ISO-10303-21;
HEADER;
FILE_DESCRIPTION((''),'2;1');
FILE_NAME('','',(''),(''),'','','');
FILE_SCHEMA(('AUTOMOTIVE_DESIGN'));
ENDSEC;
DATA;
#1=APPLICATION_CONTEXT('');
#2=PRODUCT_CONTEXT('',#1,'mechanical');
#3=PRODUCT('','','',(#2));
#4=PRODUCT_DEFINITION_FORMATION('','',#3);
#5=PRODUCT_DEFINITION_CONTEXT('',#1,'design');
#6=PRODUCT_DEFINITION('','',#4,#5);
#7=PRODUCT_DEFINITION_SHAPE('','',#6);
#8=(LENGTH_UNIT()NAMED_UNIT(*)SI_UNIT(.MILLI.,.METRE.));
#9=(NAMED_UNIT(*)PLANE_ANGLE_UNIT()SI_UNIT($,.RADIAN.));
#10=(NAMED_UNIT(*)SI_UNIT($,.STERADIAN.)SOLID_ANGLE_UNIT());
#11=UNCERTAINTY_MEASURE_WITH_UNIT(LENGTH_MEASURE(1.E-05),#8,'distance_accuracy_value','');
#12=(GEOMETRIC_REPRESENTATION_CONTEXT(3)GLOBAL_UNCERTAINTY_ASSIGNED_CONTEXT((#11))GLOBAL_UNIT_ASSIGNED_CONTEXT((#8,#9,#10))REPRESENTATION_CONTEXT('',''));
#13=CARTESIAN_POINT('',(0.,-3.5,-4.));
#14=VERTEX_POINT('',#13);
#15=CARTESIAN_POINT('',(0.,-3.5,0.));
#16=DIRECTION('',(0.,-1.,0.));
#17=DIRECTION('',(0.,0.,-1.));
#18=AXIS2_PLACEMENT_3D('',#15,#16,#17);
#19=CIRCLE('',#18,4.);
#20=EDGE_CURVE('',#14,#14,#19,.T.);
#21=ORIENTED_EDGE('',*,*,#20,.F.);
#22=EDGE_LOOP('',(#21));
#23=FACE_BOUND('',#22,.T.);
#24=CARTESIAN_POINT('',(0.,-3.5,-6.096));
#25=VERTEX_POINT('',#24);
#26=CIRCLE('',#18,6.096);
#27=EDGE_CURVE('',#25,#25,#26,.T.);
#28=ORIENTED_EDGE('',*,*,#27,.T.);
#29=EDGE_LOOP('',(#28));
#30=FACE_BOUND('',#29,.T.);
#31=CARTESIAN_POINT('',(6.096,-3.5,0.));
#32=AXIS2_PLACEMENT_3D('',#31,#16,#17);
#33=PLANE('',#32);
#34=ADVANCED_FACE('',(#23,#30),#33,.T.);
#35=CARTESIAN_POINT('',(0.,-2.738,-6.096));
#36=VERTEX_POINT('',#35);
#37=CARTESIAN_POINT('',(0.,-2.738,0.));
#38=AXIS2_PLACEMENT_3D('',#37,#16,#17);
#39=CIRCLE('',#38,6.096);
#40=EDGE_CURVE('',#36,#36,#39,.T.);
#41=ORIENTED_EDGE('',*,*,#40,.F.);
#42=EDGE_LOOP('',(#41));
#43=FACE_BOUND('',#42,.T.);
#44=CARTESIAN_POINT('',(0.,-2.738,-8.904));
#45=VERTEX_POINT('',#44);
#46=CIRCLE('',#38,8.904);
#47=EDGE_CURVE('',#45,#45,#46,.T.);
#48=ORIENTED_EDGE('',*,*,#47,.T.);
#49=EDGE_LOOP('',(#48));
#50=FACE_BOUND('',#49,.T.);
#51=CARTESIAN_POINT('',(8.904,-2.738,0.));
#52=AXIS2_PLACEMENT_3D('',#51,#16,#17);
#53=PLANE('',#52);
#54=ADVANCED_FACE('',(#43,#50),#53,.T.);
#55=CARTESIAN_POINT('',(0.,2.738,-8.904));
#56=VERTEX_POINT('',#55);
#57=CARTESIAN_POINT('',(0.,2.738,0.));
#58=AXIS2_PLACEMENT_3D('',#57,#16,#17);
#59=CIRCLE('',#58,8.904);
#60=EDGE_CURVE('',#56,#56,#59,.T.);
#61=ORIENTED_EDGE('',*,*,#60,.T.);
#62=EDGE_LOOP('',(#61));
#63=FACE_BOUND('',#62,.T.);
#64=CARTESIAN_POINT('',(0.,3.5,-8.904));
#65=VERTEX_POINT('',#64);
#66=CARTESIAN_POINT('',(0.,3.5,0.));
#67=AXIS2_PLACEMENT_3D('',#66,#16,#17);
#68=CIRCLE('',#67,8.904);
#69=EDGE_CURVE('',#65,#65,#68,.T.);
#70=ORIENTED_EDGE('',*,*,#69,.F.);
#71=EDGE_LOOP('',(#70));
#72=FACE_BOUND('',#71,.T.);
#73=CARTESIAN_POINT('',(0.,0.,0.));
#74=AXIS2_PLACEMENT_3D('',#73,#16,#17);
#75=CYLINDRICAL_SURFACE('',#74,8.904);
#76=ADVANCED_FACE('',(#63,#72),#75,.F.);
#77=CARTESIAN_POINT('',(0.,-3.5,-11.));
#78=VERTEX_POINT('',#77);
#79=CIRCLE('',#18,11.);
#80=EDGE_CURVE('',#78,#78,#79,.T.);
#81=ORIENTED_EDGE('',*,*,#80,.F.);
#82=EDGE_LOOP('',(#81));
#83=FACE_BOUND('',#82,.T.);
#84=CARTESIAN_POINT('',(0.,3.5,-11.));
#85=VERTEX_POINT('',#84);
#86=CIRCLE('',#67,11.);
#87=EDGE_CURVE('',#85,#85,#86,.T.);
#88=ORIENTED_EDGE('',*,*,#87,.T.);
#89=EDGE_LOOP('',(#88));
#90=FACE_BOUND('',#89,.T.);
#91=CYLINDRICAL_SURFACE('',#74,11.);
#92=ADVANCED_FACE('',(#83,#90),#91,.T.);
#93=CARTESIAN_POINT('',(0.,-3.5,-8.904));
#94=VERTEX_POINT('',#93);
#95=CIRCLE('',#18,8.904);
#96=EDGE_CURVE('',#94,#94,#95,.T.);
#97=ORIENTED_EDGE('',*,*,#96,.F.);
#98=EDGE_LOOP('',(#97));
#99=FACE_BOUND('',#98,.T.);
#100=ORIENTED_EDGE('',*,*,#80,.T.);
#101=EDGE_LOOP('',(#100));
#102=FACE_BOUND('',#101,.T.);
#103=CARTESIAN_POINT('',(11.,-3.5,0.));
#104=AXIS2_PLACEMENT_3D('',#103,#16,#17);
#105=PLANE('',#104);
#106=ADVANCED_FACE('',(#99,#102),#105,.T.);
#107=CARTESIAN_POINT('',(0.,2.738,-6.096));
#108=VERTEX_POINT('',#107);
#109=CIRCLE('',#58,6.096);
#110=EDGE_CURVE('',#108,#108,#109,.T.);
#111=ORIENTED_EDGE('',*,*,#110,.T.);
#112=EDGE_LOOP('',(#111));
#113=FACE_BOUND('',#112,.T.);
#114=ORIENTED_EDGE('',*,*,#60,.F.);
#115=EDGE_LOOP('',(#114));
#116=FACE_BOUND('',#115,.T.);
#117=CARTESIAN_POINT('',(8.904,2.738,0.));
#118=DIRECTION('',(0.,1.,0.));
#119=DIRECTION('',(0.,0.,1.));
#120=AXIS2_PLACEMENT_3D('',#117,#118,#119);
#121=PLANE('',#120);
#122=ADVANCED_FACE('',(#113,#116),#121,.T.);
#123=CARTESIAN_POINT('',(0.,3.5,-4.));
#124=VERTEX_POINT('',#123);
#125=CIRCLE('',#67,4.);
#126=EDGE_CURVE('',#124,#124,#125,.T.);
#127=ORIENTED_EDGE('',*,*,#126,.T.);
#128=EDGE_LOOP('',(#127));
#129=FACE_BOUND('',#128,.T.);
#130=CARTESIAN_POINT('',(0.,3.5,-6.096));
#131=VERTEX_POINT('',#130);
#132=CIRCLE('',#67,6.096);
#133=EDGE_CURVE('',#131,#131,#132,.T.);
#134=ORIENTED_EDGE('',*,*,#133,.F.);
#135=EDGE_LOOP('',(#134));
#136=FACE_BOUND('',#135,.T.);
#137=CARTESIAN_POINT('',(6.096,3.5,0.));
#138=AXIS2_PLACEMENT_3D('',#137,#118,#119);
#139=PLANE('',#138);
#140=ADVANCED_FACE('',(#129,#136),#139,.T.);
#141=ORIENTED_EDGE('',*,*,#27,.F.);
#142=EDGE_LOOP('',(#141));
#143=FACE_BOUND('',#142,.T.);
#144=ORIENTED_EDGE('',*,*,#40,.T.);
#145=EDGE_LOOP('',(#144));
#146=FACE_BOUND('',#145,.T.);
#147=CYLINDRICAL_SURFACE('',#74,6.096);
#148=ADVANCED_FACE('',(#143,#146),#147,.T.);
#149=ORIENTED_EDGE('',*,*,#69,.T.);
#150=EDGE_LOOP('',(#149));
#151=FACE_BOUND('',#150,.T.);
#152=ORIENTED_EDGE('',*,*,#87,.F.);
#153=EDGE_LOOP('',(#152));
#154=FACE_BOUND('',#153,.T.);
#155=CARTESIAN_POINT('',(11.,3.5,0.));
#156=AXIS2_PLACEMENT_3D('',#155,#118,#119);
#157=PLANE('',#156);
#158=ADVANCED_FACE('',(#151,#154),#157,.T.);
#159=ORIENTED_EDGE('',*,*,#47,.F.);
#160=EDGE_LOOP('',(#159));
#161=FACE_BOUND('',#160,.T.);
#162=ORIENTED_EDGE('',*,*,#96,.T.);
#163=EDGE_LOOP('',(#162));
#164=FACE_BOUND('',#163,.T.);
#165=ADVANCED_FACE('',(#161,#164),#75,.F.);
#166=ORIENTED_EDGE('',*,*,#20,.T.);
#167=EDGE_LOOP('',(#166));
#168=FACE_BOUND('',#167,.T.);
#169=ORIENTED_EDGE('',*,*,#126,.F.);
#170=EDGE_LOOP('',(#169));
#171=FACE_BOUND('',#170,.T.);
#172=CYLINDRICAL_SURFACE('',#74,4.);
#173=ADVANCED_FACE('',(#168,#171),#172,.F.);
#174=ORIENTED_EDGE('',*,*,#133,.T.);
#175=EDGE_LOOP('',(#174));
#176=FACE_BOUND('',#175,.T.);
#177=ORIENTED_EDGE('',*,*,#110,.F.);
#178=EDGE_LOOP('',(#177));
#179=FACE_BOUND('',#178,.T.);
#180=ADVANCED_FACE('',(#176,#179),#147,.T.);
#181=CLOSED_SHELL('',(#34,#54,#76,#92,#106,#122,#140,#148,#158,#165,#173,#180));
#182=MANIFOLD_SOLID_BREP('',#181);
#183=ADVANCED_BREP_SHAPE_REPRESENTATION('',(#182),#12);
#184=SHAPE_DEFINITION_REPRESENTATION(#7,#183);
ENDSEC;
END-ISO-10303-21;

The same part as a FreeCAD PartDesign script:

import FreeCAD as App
import Part
import Sketcher
from FreeCAD import Vector
Q = App.Units.Quantity


def add_polygon(sketch, points):
    """Adds a closed chain of lines whose ends are joined by coincident constraints."""
    first, n = sketch.GeometryCount, len(points)
    for a, b in zip(points, points[1:] + points[:1]):
        sketch.addGeometry(Part.LineSegment(App.Vector(*a, 0), App.Vector(*b, 0)), False)
    for i in range(n):
        sketch.addConstraint(Sketcher.Constraint("Coincident", first + i, 2, first + (i + 1) % n, 1))

doc = App.newDocument("Part")
params = doc.addObject("Spreadsheet::Sheet", "Params")
for row, (alias, value) in enumerate([
    ("sketch1_height", "7 mm"),
    ("revolution_angle", "360 deg"),
], start=1):
    params.set(f"A{row}", alias)
    params.set(f"B{row}", "=" + value)
    params.setAlias(f"B{row}", alias)

body = doc.addObject("PartDesign::Body", "Body")

sketch1 = body.newObject("Sketcher::SketchObject", "Sketch")
sketch1.AttachmentSupport = (doc.getObject("XY_Plane"), [""])
sketch1.MapMode = "FlatFace"
add_polygon(sketch1, [(11, -3.5), (11, 3.5), (8.9, 3.5), (8.9, 2.7), (6.1, 2.7), (6.1, 3.5), (4, 3.5), (4, -3.5), (6.1, -3.5), (6.1, -2.7), (8.9, -2.7), (8.9, -3.5)])
sketch1.addConstraint([
    Sketcher.Constraint("Vertical", 0),
    Sketcher.Constraint("Horizontal", 1),
    Sketcher.Constraint("Vertical", 2),
    Sketcher.Constraint("Horizontal", 3),
    Sketcher.Constraint("Vertical", 4),
    Sketcher.Constraint("Horizontal", 5),
    Sketcher.Constraint("Vertical", 6),
    Sketcher.Constraint("Horizontal", 7),
    Sketcher.Constraint("Vertical", 8),
    Sketcher.Constraint("Horizontal", 9),
    Sketcher.Constraint("Vertical", 10),
    Sketcher.Constraint("Horizontal", 11),
    Sketcher.Constraint("Symmetric", 4, 2, 7, 2, -1),
    Sketcher.Constraint("Symmetric", 2, 2, 9, 2, -1),
    Sketcher.Constraint("Horizontal", 1, 2, 4, 2),
    Sketcher.Constraint("Horizontal", 7, 2, 10, 2),
    Sketcher.Constraint("Equal", 1, 5),
    Sketcher.Constraint("DistanceY", 0, 1, 0, 2, Q("7 mm")),
    Sketcher.Constraint("DistanceX", -1, 1, 0, 2, Q("11 mm")),
    Sketcher.Constraint("DistanceX", -1, 1, 5, 2, Q("4 mm")),
    Sketcher.Constraint("DistanceX", 1, 2, 1, 1, Q("2.096 mm")),
    Sketcher.Constraint("DistanceY", 2, 2, 2, 1, Q("0.762 mm")),
])
sketch1.setExpression("Constraints[29]", "Params.sketch1_height")
revolution = body.newObject("PartDesign::Revolution", "Revolution")
revolution.Profile = sketch1
revolution.ReferenceAxis = (sketch1, ["V_Axis"])
revolution.setExpression("Angle", "Params.revolution_angle")

doc.recompute()
